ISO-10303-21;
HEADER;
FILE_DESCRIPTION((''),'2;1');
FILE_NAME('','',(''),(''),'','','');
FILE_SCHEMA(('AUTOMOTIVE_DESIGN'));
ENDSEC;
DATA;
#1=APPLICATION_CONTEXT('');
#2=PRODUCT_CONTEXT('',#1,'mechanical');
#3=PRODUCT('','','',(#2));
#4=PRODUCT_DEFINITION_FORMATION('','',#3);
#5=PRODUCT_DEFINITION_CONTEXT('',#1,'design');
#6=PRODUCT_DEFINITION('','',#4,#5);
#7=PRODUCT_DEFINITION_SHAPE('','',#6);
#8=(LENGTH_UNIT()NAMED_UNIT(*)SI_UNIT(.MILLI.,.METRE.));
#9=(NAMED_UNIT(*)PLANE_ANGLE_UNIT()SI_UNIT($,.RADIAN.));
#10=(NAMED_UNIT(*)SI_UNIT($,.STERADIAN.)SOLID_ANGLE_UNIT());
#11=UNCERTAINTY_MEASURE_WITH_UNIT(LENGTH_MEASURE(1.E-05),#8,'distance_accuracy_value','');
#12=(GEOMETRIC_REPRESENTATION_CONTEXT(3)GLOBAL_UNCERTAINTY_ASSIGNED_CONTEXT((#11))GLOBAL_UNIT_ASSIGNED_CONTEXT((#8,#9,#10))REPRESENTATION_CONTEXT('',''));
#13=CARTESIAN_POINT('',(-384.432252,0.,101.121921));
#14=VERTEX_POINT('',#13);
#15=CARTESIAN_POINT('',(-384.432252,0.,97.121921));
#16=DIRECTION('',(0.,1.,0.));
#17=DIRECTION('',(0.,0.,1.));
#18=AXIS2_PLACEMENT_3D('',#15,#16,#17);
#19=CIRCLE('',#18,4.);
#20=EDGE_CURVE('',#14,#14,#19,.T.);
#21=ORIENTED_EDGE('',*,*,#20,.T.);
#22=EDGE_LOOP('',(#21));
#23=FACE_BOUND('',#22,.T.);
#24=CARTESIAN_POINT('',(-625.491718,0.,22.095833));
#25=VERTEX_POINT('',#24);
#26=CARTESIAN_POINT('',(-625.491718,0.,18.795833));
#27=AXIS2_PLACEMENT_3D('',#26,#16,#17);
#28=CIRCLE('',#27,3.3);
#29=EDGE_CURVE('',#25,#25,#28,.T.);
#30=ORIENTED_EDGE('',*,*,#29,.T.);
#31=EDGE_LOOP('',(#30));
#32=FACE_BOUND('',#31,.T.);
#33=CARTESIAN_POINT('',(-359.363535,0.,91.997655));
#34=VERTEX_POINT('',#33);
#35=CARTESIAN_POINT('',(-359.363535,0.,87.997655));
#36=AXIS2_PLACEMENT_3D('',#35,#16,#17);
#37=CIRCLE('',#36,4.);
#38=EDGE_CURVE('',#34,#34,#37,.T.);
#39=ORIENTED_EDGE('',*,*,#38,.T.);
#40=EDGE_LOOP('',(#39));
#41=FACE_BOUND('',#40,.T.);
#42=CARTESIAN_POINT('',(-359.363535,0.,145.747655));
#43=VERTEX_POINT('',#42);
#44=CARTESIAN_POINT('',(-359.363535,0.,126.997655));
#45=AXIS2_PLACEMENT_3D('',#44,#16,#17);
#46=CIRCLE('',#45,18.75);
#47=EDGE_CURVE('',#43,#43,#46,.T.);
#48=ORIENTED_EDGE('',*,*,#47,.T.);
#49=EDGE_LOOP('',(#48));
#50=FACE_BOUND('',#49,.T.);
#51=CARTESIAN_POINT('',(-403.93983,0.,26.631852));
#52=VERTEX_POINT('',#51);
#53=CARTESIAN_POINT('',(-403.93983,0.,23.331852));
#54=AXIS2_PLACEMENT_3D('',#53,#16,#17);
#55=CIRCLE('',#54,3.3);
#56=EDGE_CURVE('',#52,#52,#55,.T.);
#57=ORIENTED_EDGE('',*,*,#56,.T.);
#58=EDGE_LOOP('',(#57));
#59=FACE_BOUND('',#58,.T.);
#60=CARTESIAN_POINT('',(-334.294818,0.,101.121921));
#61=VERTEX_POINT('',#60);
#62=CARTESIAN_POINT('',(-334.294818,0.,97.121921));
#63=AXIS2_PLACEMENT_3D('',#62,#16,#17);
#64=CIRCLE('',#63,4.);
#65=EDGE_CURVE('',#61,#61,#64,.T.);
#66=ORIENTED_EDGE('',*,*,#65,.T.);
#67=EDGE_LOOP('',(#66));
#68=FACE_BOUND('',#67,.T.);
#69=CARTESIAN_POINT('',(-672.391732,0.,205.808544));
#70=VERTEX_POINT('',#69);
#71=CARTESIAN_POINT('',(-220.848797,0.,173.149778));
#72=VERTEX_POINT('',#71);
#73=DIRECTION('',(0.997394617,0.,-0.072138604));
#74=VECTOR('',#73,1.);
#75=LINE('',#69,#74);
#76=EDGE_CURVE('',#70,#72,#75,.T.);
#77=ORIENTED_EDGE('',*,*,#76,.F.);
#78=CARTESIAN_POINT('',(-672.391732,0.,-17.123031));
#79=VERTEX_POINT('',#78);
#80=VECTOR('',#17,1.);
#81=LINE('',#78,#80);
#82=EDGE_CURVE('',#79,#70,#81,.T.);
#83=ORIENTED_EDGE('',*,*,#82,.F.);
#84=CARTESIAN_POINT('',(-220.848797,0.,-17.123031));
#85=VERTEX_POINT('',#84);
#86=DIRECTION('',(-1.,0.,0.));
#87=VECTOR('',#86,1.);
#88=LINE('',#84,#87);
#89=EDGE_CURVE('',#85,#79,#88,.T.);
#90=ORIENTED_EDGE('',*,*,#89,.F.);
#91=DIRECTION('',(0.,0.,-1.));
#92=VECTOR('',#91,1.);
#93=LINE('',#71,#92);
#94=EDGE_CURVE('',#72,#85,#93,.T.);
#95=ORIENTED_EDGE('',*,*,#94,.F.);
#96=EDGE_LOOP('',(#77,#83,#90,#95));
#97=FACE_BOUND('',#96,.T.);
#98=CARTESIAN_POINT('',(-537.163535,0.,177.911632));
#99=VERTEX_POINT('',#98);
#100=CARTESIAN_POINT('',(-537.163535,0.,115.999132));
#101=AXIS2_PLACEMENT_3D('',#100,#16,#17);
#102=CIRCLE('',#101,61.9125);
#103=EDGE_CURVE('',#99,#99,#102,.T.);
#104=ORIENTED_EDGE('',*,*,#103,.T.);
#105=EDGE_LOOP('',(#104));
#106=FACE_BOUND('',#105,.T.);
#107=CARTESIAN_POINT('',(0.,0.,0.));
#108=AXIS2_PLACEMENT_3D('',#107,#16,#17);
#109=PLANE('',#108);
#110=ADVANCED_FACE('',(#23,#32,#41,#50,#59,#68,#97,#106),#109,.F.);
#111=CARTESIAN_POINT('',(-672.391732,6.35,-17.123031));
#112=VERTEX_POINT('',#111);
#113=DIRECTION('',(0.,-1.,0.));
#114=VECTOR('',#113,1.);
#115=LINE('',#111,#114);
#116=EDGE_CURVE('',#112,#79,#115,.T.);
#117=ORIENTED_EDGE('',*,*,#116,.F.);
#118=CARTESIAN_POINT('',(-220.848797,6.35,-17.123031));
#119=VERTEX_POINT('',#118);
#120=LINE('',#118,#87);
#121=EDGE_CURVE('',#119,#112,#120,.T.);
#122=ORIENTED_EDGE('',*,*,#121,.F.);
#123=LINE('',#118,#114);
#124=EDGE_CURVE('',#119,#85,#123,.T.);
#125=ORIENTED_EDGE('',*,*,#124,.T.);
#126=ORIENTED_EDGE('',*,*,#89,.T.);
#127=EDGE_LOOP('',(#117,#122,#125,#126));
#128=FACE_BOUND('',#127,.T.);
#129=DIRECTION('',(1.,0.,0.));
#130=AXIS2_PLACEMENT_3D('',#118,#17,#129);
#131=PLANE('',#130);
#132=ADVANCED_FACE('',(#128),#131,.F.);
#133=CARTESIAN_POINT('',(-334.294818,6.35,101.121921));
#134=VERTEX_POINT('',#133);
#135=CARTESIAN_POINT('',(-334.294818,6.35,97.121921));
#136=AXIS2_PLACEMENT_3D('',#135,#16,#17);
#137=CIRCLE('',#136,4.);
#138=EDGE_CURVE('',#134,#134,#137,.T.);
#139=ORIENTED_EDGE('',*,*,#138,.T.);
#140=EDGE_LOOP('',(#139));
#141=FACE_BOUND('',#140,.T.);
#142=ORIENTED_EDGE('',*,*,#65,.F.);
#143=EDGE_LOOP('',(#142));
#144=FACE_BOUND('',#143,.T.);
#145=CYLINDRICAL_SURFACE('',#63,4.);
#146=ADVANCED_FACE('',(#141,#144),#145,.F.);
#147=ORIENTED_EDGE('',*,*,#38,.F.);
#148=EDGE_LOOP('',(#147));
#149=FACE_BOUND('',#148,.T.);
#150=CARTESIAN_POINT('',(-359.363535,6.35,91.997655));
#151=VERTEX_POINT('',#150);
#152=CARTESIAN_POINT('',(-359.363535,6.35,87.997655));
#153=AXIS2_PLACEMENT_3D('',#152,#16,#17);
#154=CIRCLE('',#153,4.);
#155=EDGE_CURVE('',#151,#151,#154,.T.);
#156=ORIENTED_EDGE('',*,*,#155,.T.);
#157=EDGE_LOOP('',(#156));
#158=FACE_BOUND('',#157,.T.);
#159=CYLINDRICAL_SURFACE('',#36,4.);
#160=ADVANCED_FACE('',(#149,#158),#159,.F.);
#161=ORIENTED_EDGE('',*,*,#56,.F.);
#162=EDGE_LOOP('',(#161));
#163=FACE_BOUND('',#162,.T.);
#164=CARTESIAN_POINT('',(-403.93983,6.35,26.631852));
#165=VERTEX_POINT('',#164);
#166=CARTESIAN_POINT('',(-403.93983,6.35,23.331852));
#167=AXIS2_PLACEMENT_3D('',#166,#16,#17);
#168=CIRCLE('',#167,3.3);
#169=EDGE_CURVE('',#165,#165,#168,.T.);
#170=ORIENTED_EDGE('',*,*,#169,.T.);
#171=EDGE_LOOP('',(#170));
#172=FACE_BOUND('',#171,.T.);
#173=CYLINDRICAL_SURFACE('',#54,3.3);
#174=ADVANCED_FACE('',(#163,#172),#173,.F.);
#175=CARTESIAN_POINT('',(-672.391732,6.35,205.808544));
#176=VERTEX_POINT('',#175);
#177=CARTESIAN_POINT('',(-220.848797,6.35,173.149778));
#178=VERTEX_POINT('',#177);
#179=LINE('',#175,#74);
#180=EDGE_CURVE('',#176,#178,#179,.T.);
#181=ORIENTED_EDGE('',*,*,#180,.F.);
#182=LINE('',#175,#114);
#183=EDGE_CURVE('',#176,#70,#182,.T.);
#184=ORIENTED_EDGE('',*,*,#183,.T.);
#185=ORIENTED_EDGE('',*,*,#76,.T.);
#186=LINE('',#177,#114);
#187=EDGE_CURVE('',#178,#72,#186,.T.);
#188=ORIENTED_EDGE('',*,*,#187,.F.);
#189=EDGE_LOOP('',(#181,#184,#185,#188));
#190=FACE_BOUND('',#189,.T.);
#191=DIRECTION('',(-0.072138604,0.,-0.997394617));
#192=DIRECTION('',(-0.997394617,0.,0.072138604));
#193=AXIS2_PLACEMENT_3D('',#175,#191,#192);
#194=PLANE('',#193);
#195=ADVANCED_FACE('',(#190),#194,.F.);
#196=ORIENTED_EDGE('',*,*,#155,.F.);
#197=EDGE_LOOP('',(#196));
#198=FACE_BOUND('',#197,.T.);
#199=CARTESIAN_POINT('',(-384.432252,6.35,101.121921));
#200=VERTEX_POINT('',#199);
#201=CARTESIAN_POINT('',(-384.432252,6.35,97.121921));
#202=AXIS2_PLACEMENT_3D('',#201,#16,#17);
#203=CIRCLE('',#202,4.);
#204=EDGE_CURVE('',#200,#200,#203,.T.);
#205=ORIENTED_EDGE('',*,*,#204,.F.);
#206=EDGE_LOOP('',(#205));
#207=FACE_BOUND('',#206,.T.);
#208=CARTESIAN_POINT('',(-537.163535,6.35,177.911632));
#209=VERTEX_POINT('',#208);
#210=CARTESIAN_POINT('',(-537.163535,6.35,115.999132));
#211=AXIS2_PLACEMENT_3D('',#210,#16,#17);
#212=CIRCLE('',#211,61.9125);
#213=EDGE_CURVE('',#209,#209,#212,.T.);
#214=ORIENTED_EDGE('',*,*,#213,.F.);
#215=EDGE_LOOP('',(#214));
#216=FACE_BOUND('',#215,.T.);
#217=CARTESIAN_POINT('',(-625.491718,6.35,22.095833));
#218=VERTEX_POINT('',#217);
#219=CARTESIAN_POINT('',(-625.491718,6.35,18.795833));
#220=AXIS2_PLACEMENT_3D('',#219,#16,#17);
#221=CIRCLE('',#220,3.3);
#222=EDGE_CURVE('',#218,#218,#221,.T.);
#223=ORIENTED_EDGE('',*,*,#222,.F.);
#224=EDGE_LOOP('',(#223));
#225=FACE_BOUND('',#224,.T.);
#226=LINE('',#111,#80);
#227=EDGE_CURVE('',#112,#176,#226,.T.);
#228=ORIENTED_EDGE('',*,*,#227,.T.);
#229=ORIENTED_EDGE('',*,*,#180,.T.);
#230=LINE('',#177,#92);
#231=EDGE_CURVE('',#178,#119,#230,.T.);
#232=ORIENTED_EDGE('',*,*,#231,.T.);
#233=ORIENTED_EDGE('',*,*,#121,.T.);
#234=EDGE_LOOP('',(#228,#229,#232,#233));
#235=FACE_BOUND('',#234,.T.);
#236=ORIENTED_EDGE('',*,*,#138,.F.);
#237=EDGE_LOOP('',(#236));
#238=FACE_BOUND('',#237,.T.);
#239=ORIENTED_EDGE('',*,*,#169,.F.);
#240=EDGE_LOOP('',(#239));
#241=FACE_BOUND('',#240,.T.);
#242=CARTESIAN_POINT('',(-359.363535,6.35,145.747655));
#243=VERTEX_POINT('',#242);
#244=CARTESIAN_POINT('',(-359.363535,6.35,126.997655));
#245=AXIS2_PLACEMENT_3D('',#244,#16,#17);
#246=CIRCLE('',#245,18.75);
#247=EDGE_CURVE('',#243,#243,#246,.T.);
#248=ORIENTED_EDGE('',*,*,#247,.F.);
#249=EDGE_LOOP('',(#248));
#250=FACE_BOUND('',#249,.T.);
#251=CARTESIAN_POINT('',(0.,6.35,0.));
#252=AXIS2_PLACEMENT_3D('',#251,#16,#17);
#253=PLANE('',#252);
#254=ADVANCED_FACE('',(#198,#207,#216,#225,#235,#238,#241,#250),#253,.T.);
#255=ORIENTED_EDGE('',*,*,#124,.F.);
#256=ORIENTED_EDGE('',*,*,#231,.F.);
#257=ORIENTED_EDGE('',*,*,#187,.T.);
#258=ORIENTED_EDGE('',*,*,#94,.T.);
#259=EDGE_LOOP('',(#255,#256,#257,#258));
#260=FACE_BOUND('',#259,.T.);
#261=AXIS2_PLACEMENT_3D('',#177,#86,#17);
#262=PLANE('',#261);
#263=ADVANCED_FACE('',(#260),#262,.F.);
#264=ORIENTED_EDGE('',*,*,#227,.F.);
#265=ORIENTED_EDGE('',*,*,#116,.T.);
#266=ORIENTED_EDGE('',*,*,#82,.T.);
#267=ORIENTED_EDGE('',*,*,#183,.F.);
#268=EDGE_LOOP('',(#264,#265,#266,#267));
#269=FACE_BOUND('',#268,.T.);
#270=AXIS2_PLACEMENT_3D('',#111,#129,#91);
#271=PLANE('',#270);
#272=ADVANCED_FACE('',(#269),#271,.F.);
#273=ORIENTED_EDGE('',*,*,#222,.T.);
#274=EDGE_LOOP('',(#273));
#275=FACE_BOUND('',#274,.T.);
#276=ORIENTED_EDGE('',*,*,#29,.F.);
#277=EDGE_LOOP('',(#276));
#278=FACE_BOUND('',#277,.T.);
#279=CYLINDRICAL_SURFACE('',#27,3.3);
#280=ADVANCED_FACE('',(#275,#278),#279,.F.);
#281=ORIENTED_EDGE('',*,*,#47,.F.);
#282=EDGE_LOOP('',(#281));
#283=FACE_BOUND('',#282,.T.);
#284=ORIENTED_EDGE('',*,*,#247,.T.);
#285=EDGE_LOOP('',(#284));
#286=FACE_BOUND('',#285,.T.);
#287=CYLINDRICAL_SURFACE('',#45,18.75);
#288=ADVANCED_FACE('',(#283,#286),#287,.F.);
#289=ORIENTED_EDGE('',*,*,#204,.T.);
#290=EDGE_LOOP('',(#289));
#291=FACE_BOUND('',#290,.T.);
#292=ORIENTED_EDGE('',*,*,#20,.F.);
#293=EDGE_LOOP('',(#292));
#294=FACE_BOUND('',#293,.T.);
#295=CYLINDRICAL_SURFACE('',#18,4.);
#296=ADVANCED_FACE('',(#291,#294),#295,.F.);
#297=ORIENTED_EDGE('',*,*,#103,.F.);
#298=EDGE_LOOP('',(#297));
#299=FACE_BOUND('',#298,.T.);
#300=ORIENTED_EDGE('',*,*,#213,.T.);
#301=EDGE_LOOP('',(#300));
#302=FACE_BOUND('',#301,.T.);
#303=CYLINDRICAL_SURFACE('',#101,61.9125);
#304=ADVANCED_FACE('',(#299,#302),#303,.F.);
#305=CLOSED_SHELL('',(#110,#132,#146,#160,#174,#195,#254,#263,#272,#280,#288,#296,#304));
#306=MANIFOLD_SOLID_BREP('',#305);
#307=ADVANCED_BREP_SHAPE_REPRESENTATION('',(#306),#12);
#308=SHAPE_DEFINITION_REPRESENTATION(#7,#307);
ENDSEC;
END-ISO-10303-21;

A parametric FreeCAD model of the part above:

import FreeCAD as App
import Part
import Sketcher

V = App.Vector
Q = App.Units.Quantity

doc = App.newDocument("Part")
body = doc.addObject("PartDesign::Body", "Body")

# Sketch on XZ plane
sketch1 = body.newObject("Sketcher::SketchObject", "Sketch")
sketch1.AttachmentSupport = (doc.getObject("XZ_Plane"), [""])
sketch1.MapMode = "FlatFace"
sketch1.addGeometry([
    Part.LineSegment(V(-672.391732, -17.123031, 0), V(-672.391732, 205.808544, 0)),
    Part.LineSegment(V(-672.391732, 205.808544, 0), V(-220.848797, 173.149778, 0)),
    Part.LineSegment(V(-220.848797, 173.149778, 0), V(-220.848797, -17.123031, 0)),
    Part.LineSegment(V(-220.848797, -17.123031, 0), V(-672.391732, -17.123031, 0)),
], False)
sketch1.addConstraint([
    Sketcher.Constraint("Coincident", 0, 2, 1, 1),
    Sketcher.Constraint("Coincident", 1, 2, 2, 1),
    Sketcher.Constraint("Coincident", 2, 2, 3, 1),
    Sketcher.Constraint("Coincident", 3, 2, 0, 1),
    Sketcher.Constraint("Vertical", 0),
    Sketcher.Constraint("Vertical", 2),
    Sketcher.Constraint("Horizontal", 3),
    Sketcher.Constraint("DistanceY", 2, 2, 2, 1, Q("190.272809 mm")),
    Sketcher.Constraint("Distance", 1, Q("452.722451 mm")),
    Sketcher.Constraint("DistanceX", 3, 2, 3, 1, Q("451.542935 mm")),
    Sketcher.Constraint("DistanceX", 0, 2, -1, 1, Q("672.391732 mm")),
    Sketcher.Constraint("DistanceY", -1, 1, 1, 2, Q("173.149778 mm")),
])
pad1 = body.newObject("PartDesign::Pad", "Pad")
pad1.Profile = sketch1
pad1.Length = 6.35
pad1.Reversed = True

# Sketch on XZ plane
sketch2 = body.newObject("Sketcher::SketchObject", "Sketch001")
sketch2.AttachmentSupport = (doc.getObject("XZ_Plane"), [""])
sketch2.MapMode = "FlatFace"
sketch2.AttachmentOffset = App.Placement(V(0, 0, -6.35), App.Rotation())
sketch2.addGeometry([
    Part.Circle(V(-403.93983, 23.331852, 0), V(0, 0, 1), 3.3),  # 0
    Part.Circle(V(-625.491718, 18.795833, 0), V(0, 0, 1), 3.3),  # 1
    Part.Circle(V(-359.363535, 87.997655, 0), V(0, 0, 1), 4),  # 2
    Part.Circle(V(-384.432252, 97.121921, 0), V(0, 0, 1), 4),  # 3
    Part.Circle(V(-334.294818, 97.121921, 0), V(0, 0, 1), 4),  # 4
    Part.Circle(V(-537.163535, 115.999132, 0), V(0, 0, 1), 61.9125),  # 5
    Part.Circle(V(-359.363535, 126.997655, 0), V(0, 0, 1), 18.75),  # 6
], False)
sketch2.addConstraint([
    Sketcher.Constraint("Equal", 0, 1),
    Sketcher.Constraint("Equal", 2, 3),
    Sketcher.Constraint("Equal", 3, 4),
    Sketcher.Constraint("Horizontal", 3, 3, 4, 3),
    Sketcher.Constraint("Vertical", 2, 3, 6, 3),
    Sketcher.Constraint("Diameter", 2, Q("8 mm")),
    Sketcher.Constraint("Diameter", 0, Q("6.6 mm")),
    Sketcher.Constraint("Diameter", 6, Q("37.5 mm")),
    Sketcher.Constraint("Diameter", 5, Q("123.825 mm")),
    Sketcher.Constraint("DistanceY", 2, 3, 6, 3, Q("39 mm")),
    Sketcher.Constraint("DistanceX", 5, 3, 2, 3, Q("177.8 mm")),
    Sketcher.Constraint("DistanceX", 1, 3, 4, 3, Q("291.1969 mm")),
    Sketcher.Constraint("DistanceY", 1, 3, 5, 3, Q("97.203299 mm")),
    Sketcher.Constraint("DistanceX", 0, 3, -1, 1, Q("403.93983 mm")),
    Sketcher.Constraint("DistanceY", -1, 1, 0, 3, Q("23.331852 mm")),
    Sketcher.Constraint("DistanceX", 1, 3, -1, 1, Q("625.491718 mm")),
    Sketcher.Constraint("DistanceX", 3, 3, -1, 1, Q("384.432252 mm")),
    Sketcher.Constraint("DistanceY", -1, 1, 3, 3, Q("97.121921 mm")),
    Sketcher.Constraint("DistanceY", -1, 1, 5, 3, Q("115.999132 mm")),
    Sketcher.Constraint("DistanceY", 1, 3, 2, 3, Q("69.201821 mm")),
    Sketcher.Constraint("DistanceX", 2, 3, -1, 1, Q("359.363535 mm")),
])
pocket1 = body.newObject("PartDesign::Pocket", "Pocket")
pocket1.Profile = sketch2
pocket1.Type = "ThroughAll"
pocket1.Reversed = True

doc.recompute()
